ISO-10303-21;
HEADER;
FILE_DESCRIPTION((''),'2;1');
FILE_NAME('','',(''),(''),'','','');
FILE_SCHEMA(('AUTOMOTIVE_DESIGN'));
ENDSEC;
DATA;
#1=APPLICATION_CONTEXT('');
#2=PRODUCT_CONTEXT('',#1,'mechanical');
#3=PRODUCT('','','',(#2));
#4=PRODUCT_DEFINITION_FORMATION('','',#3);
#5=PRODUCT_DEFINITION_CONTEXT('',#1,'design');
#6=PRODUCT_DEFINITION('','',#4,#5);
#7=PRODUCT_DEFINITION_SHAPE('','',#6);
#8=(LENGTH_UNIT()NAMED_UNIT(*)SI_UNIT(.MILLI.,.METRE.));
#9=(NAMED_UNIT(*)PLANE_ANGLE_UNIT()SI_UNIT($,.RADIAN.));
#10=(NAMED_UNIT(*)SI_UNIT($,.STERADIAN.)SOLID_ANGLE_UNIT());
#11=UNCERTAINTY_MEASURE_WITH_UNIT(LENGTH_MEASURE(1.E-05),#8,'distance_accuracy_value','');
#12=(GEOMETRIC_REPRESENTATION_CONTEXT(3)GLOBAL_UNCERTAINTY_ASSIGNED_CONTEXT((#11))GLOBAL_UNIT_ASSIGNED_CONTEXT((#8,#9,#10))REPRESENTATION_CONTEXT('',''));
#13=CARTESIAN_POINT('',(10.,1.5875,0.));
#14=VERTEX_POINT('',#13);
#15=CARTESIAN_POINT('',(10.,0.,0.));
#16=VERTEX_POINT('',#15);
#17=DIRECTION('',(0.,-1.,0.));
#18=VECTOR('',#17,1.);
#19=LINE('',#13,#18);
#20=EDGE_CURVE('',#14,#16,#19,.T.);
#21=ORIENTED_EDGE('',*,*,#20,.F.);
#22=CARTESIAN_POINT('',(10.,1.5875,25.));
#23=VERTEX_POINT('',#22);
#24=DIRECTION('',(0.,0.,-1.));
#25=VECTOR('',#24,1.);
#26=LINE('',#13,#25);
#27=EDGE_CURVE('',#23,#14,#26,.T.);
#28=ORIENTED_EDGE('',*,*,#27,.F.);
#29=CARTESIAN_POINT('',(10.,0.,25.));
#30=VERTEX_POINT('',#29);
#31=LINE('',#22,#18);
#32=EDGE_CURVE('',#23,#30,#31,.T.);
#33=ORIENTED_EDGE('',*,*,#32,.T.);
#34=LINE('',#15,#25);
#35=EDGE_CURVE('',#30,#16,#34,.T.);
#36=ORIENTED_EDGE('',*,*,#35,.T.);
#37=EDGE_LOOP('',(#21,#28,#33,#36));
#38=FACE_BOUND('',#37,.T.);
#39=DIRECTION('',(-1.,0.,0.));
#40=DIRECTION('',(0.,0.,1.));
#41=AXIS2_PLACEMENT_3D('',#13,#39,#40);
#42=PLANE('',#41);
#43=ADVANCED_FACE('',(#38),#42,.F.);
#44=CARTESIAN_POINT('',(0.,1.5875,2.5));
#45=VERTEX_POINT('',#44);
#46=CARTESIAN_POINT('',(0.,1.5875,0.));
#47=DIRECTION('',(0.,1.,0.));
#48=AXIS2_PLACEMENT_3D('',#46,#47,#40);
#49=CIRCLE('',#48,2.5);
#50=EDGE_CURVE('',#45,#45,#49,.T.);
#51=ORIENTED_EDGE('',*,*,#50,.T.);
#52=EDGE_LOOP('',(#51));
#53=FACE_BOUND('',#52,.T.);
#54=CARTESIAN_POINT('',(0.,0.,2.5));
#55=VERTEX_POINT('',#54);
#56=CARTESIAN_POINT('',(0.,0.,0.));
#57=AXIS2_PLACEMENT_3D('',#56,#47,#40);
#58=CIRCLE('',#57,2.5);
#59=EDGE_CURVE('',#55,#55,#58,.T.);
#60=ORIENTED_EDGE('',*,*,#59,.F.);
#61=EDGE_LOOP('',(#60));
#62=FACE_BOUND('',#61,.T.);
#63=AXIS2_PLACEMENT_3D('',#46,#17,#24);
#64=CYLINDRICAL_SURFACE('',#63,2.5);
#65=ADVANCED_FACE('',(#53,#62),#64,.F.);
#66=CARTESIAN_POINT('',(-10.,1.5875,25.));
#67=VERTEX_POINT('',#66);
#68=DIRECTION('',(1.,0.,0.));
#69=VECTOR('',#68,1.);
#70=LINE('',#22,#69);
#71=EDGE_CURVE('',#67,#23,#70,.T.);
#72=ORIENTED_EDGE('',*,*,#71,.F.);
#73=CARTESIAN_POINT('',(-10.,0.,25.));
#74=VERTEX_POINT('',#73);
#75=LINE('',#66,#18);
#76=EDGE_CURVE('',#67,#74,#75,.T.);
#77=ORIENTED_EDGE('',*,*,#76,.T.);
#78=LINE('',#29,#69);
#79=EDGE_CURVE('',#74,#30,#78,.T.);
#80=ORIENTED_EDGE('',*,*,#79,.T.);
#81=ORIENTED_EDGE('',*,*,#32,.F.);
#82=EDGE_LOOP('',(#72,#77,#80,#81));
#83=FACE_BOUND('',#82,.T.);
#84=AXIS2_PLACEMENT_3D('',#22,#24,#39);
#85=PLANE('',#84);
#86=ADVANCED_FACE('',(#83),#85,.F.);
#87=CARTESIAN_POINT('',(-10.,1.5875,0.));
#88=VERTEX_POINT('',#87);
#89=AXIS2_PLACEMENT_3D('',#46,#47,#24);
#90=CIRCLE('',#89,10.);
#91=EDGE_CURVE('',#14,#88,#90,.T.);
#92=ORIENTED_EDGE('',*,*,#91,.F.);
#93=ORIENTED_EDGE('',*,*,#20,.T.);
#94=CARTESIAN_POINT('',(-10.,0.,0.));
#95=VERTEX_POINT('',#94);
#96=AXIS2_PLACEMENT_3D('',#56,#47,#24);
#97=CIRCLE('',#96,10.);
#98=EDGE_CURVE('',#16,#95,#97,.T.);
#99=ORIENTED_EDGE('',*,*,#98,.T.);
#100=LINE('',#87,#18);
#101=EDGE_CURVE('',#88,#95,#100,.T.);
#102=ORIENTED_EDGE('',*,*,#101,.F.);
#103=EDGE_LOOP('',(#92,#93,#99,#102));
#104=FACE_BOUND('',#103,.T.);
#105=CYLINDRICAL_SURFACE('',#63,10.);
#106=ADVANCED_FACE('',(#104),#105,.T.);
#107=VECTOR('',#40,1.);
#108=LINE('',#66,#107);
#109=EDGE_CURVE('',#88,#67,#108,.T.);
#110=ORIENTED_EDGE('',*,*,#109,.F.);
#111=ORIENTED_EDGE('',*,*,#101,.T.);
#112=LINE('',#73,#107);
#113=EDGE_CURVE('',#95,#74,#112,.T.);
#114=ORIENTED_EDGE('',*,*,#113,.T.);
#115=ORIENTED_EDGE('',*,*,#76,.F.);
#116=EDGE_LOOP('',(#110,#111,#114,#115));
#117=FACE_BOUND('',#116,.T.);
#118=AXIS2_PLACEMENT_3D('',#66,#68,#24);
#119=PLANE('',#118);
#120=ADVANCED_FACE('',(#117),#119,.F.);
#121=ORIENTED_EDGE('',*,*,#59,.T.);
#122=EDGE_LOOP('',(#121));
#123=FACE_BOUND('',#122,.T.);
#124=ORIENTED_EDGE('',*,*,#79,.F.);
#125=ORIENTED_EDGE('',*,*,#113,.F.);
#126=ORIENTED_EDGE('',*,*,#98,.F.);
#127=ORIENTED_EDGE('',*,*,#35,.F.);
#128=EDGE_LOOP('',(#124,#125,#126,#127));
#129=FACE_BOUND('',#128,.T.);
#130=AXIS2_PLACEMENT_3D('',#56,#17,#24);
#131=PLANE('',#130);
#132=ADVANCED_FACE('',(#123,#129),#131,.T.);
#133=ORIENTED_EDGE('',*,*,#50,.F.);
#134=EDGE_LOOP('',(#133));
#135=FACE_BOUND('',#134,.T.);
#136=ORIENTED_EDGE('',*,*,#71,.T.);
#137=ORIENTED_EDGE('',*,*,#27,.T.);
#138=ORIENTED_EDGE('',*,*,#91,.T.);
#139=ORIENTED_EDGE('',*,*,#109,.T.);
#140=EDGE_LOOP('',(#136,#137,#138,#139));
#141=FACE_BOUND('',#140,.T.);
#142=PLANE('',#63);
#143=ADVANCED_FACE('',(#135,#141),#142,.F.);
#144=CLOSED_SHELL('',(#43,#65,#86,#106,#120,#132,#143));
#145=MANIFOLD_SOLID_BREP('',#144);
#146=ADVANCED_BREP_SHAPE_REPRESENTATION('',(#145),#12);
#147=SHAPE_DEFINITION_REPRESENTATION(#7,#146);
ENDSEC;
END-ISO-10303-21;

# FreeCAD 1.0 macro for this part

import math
import FreeCAD as App
import Part
import Sketcher

doc = App.newDocument("Part")
params = doc.addObject("Spreadsheet::Sheet", "Params")
for row, (alias, value) in enumerate([
    ("sketch1_diameter", "5 mm"),
    ("sketch1_radius", "10 mm"),
    ("sketch1_height", "25 mm"),
    ("pad1_length", "1.5875 mm"),
], start=1):
    params.set(f"A{row}", alias)
    params.set(f"B{row}", "=" + value)
    params.setAlias(f"B{row}", alias)

body = doc.addObject("PartDesign::Body", "Body")

sketch1 = body.newObject("Sketcher::SketchObject", "Sketch")
sketch1.AttachmentSupport = (doc.getObject("XZ_Plane"), [""])
sketch1.MapMode = "FlatFace"
sketch1.addGeometry([
    Part.LineSegment(App.Vector(10, 25, 0), App.Vector(10, 0, 0)),
    Part.ArcOfCircle(Part.Circle(App.Vector(0, 0, 0), App.Vector(0, 0, 1), 10), math.radians(180), math.radians(360)),
    Part.LineSegment(App.Vector(-10, 0, 0), App.Vector(-10, 25, 0)),
    Part.LineSegment(App.Vector(-10, 25, 0), App.Vector(10, 25, 0)),
    Part.Circle(App.Vector(0, 0, 0), App.Vector(0, 0, 1), 2.5),
], False)
sketch1.addConstraint([
    Sketcher.Constraint("Tangent", 0, 2, 1, 2),
    Sketcher.Constraint("Tangent", 1, 1, 2, 1),
    Sketcher.Constraint("Coincident", 2, 2, 3, 1),
    Sketcher.Constraint("Coincident", 3, 2, 0, 1),
    Sketcher.Constraint("Vertical", 0),
    Sketcher.Constraint("Vertical", 2),
    Sketcher.Constraint("Horizontal", 3),
    Sketcher.Constraint("Coincident", 1, 3, -1, 1),
    Sketcher.Constraint("Coincident", 4, 3, -1, 1),
    Sketcher.Constraint("Diameter", 4, 5.0),
    Sketcher.Constraint("Radius", 1, 10.0),
    Sketcher.Constraint("DistanceY", 0, 2, 0, 1, 25.0),
])
sketch1.setExpression("Constraints[9]", "Params.sketch1_diameter")
sketch1.setExpression("Constraints[10]", "Params.sketch1_radius")
sketch1.setExpression("Constraints[11]", "Params.sketch1_height")
pad1 = body.newObject("PartDesign::Pad", "Pad")
pad1.Profile = sketch1
pad1.setExpression("Length", "Params.pad1_length")
pad1.Reversed = True

doc.recompute()
